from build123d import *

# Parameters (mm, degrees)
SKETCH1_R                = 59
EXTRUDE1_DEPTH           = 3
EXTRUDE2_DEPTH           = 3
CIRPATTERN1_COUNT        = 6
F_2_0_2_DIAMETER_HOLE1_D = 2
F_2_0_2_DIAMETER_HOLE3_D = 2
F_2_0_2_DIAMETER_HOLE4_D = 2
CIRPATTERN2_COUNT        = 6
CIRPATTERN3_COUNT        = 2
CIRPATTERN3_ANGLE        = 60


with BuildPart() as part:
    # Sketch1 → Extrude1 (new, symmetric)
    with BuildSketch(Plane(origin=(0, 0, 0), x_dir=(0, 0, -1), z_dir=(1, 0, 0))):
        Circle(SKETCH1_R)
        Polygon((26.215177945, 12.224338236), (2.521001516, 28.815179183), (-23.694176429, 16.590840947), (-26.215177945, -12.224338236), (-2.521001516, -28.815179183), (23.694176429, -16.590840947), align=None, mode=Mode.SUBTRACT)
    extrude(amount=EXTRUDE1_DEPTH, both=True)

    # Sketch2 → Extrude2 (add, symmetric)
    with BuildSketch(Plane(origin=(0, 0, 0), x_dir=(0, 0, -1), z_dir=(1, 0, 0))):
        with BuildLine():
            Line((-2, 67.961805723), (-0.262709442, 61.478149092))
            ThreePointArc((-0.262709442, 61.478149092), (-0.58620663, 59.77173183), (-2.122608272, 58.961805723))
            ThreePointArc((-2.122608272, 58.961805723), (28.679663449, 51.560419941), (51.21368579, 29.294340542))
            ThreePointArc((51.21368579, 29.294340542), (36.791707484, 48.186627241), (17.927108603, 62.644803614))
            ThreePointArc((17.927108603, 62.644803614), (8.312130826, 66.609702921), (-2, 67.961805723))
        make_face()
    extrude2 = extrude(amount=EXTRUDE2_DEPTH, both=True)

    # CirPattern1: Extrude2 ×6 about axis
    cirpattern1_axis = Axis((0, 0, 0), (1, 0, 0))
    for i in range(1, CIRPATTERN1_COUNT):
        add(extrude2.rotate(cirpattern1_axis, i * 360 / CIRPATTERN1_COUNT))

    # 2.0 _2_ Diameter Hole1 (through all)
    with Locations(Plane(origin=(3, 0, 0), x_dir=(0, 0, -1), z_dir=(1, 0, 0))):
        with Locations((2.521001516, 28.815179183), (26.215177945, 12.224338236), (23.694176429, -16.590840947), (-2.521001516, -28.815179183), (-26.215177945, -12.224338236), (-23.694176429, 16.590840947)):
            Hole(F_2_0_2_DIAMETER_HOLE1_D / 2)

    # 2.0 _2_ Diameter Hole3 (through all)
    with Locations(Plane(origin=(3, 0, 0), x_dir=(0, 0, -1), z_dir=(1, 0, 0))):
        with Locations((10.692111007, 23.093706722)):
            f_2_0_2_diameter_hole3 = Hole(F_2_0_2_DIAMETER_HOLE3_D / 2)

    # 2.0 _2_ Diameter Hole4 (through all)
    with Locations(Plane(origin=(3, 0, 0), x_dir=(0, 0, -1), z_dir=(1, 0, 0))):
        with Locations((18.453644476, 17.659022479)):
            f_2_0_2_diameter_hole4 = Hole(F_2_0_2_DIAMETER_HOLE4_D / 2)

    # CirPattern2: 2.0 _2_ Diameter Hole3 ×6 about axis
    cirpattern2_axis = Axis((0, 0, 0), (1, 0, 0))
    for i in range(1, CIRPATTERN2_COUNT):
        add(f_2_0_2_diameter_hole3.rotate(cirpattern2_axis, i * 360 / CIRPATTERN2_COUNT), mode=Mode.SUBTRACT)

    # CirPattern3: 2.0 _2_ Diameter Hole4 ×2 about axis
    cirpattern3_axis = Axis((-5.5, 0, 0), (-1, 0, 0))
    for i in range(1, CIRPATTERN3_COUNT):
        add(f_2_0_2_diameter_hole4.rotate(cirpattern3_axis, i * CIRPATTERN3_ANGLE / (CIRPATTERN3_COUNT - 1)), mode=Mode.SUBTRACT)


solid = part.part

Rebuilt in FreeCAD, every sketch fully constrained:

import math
import FreeCAD as App
import Part
import Sketcher
Q = App.Units.Quantity


def add_polygon(sketch, points):
    """Adds a closed chain of lines whose ends are joined by coincident constraints."""
    first, n = sketch.GeometryCount, len(points)
    for a, b in zip(points, points[1:] + points[:1]):
        sketch.addGeometry(Part.LineSegment(App.Vector(*a, 0), App.Vector(*b, 0)), False)
    for i in range(n):
        sketch.addConstraint(Sketcher.Constraint("Coincident", first + i, 2, first + (i + 1) % n, 1))

doc = App.newDocument("Part")
body = doc.addObject("PartDesign::Body", "Body")

sketch1 = doc.addObject("Sketcher::SketchObject", "Sketch")
body.addObject(sketch1)
sketch1.AttachmentSupport = (doc.YZ_Plane, [""])
sketch1.MapMode = "FlatFace"
sketch1.addGeometry(Part.Circle(App.Vector(0, 0, 0), App.Vector(0, 0, 1), 59), False)
add_polygon(sketch1, [(28.815179, -2.521002), (12.224338, -26.215178), (-16.590841, -23.694176), (-28.815179, 2.521002), (-12.224338, 26.215178), (16.590841, 23.694176)])
sketch1.addConstraint([
    Sketcher.Constraint("Coincident", 0, 3, -1, 1),
    Sketcher.Constraint("Symmetric", 1, 2, 4, 2, -1, 1),
    Sketcher.Constraint("Symmetric", 2, 2, 5, 2, -1, 1),
    Sketcher.Constraint("Symmetric", 3, 2, 6, 2, -1, 1),
    Sketcher.Constraint("Equal", 1, 2),
    Sketcher.Constraint("Equal", 2, 3),
    Sketcher.Constraint("Diameter", 0, Q("118 mm")),
    Sketcher.Constraint("Angle", 1, Q("-125 deg")),
    Sketcher.Constraint("Angle", 2, Q("175 deg")),
    Sketcher.Constraint("Angle", 3, Q("115 deg")),
    Sketcher.Constraint("DistanceY", -1, 1, 3, 2, Q("2.521002 mm")),
])
pad1 = doc.addObject("PartDesign::Pad", "Pad")
body.addObject(pad1)
pad1.Profile = sketch1
pad1.Length = 6
pad1.Midplane = True

sketch2 = doc.addObject("Sketcher::SketchObject", "Sketch001")
body.addObject(sketch2)
sketch2.AttachmentSupport = (doc.YZ_Plane, [""])
sketch2.MapMode = "FlatFace"
sketch2.addGeometry([
    Part.LineSegment(App.Vector(67.961806, 2, 0), App.Vector(61.478149, 0.262709, 0)),
    Part.ArcOfCircle(Part.Circle(App.Vector(60.960511, 2.194561, 0), App.Vector(0, 0, 1), 2), math.radians(-177.938259), math.radians(-75)),
    Part.ArcOfCircle(Part.Circle(App.Vector(0, 0, 0), App.Vector(0, 0, 1), 59), math.radians(-60.230349), math.radians(2.061741)),
    Part.ArcOfCircle(Part.Circle(App.Vector(-15.391942, 26.908886, 0), App.Vector(0, 0, 1), 90), math.radians(-60.230349), math.radians(-29.879512)),
    Part.ArcOfCircle(Part.Circle(App.Vector(27.961806, 2, 0), App.Vector(0, 0, 1), 40), math.radians(-29.879512), math.radians(0)),
], False)
sketch2.addConstraint([
    Sketcher.Constraint("Tangent", 0, 2, 1, 2),
    Sketcher.Constraint("Tangent", 1, 1, 2, 2),
    Sketcher.Constraint("Tangent", 2, 1, 3, 1),
    Sketcher.Constraint("Tangent", 3, 2, 4, 1),
    Sketcher.Constraint("Coincident", 4, 2, 0, 1),
    Sketcher.Constraint("Coincident", 2, 3, -1, 1),
    Sketcher.Constraint("Radius", 1, Q("2 mm")),
    Sketcher.Constraint("Radius", 2, Q("59 mm")),
    Sketcher.Constraint("Radius", 3, Q("90 mm")),
    Sketcher.Constraint("Radius", 4, Q("40 mm")),
    Sketcher.Constraint("Angle", 0, Q("-165 deg")),
    Sketcher.Constraint("DistanceY", -1, 1, 4, 3, Q("2 mm")),
    Sketcher.Constraint("DistanceY", -1, 1, 4, 2, Q("2 mm")),
    Sketcher.Constraint("DistanceX", 4, 3, 1, 1, Q("31 mm")),
])
pad2 = doc.addObject("PartDesign::Pad", "Pad001")
body.addObject(pad2)
pad2.Profile = sketch2
pad2.Length = 6
pad2.Midplane = True
doc.recompute()

polarpattern = doc.addObject("PartDesign::PolarPattern", "PolarPattern")
body.addObject(polarpattern)
polarpattern.Originals = [pad2]
polarpattern.Axis = (doc.X_Axis, [""])
polarpattern.Angle = 360
polarpattern.Occurrences = 6
body.Tip = polarpattern

sketch3 = doc.addObject("Sketcher::SketchObject", "Sketch002")
body.addObject(sketch3)
sketch3.AttachmentSupport = (doc.YZ_Plane, [""])
sketch3.MapMode = "FlatFace"
sketch3.AttachmentOffset = App.Placement(App.Vector(0, 0, 3), App.Rotation())
sketch3.addGeometry([
    Part.Circle(App.Vector(28.815179, -2.521002, 0), App.Vector(0, 0, 1), 1),
    Part.Circle(App.Vector(12.224338, -26.215178, 0), App.Vector(0, 0, 1), 1),
    Part.Circle(App.Vector(-16.590841, -23.694176, 0), App.Vector(0, 0, 1), 1),
    Part.Circle(App.Vector(-28.815179, 2.521002, 0), App.Vector(0, 0, 1), 1),
    Part.Circle(App.Vector(-12.224338, 26.215178, 0), App.Vector(0, 0, 1), 1),
    Part.Circle(App.Vector(16.590841, 23.694176, 0), App.Vector(0, 0, 1), 1),
], False)
sketch3.addConstraint([
    Sketcher.Constraint("Equal", 0, 1),
    Sketcher.Constraint("Equal", 1, 2),
    Sketcher.Constraint("Equal", 2, 3),
    Sketcher.Constraint("Equal", 3, 4),
    Sketcher.Constraint("Equal", 4, 5),
    Sketcher.Constraint("Symmetric", 0, 3, 3, 3, -1, 1),
    Sketcher.Constraint("Symmetric", 1, 3, 4, 3, -1, 1),
    Sketcher.Constraint("Symmetric", 2, 3, 5, 3, -1, 1),
    Sketcher.Constraint("Diameter", 0, Q("2 mm")),
    Sketcher.Constraint("DistanceY", 0, 3, -1, 1, Q("2.521002 mm")),
    Sketcher.Constraint("DistanceY", 1, 3, 2, 3, Q("2.521002 mm")),
    Sketcher.Constraint("DistanceX", -1, 1, 0, 3, Q("28.815179 mm")),
    Sketcher.Constraint("DistanceX", -1, 1, 1, 3, Q("12.224338 mm")),
    Sketcher.Constraint("DistanceX", 2, 3, -1, 1, Q("16.590841 mm")),
    Sketcher.Constraint("DistanceY", 1, 3, 3, 3, Q("28.736179 mm")),
])
doc.recompute()
hole = doc.addObject("PartDesign::Hole", "Hole")
body.addObject(hole)
hole.Profile = sketch3
hole.ThreadType = "None"
hole.Diameter = 2
hole.DepthType = "ThroughAll"

sketch4 = doc.addObject("Sketcher::SketchObject", "Sketch003")
body.addObject(sketch4)
sketch4.AttachmentSupport = (doc.YZ_Plane, [""])
sketch4.MapMode = "FlatFace"
sketch4.AttachmentOffset = App.Placement(App.Vector(0, 0, 3), App.Rotation())
sketch4.addGeometry(Part.Circle(App.Vector(23.093707, -10.692111, 0), App.Vector(0, 0, 1), 1), False)
sketch4.addConstraint([
    Sketcher.Constraint("Diameter", 0, Q("2 mm")),
    Sketcher.Constraint("DistanceY", 0, 3, -1, 1, Q("10.692111 mm")),
    Sketcher.Constraint("DistanceX", -1, 1, 0, 3, Q("23.093707 mm")),
])
doc.recompute()
hole2 = doc.addObject("PartDesign::Hole", "Hole001")
body.addObject(hole2)
hole2.Profile = sketch4
hole2.ThreadType = "None"
hole2.Diameter = 2
hole2.DepthType = "ThroughAll"

sketch5 = doc.addObject("Sketcher::SketchObject", "Sketch004")
body.addObject(sketch5)
sketch5.AttachmentSupport = (doc.YZ_Plane, [""])
sketch5.MapMode = "FlatFace"
sketch5.AttachmentOffset = App.Placement(App.Vector(0, 0, 3), App.Rotation())
sketch5.addGeometry(Part.Circle(App.Vector(17.659022, -18.453644, 0), App.Vector(0, 0, 1), 1), False)
sketch5.addConstraint([
    Sketcher.Constraint("Diameter", 0, Q("2 mm")),
    Sketcher.Constraint("DistanceX", -1, 1, 0, 3, Q("17.659022 mm")),
    Sketcher.Constraint("DistanceY", 0, 3, -1, 1, Q("18.453644 mm")),
])
doc.recompute()
hole3 = doc.addObject("PartDesign::Hole", "Hole002")
body.addObject(hole3)
hole3.Profile = sketch5
hole3.ThreadType = "None"
hole3.Diameter = 2
hole3.DepthType = "ThroughAll"
doc.recompute()

polarpattern2 = doc.addObject("PartDesign::PolarPattern", "PolarPattern001")
body.addObject(polarpattern2)
polarpattern2.Originals = [hole2]
polarpattern2.Axis = (doc.X_Axis, [""])
polarpattern2.Angle = 360
polarpattern2.Occurrences = 6
body.Tip = polarpattern2
doc.recompute()

polarpattern3 = doc.addObject("PartDesign::PolarPattern", "PolarPattern002")
body.addObject(polarpattern3)
polarpattern3.Originals = [hole3]
polarpattern3.Axis = (doc.X_Axis, [""])
polarpattern3.Angle = 60
polarpattern3.Occurrences = 2
polarpattern3.Reversed = True
body.Tip = polarpattern3

doc.recompute()
